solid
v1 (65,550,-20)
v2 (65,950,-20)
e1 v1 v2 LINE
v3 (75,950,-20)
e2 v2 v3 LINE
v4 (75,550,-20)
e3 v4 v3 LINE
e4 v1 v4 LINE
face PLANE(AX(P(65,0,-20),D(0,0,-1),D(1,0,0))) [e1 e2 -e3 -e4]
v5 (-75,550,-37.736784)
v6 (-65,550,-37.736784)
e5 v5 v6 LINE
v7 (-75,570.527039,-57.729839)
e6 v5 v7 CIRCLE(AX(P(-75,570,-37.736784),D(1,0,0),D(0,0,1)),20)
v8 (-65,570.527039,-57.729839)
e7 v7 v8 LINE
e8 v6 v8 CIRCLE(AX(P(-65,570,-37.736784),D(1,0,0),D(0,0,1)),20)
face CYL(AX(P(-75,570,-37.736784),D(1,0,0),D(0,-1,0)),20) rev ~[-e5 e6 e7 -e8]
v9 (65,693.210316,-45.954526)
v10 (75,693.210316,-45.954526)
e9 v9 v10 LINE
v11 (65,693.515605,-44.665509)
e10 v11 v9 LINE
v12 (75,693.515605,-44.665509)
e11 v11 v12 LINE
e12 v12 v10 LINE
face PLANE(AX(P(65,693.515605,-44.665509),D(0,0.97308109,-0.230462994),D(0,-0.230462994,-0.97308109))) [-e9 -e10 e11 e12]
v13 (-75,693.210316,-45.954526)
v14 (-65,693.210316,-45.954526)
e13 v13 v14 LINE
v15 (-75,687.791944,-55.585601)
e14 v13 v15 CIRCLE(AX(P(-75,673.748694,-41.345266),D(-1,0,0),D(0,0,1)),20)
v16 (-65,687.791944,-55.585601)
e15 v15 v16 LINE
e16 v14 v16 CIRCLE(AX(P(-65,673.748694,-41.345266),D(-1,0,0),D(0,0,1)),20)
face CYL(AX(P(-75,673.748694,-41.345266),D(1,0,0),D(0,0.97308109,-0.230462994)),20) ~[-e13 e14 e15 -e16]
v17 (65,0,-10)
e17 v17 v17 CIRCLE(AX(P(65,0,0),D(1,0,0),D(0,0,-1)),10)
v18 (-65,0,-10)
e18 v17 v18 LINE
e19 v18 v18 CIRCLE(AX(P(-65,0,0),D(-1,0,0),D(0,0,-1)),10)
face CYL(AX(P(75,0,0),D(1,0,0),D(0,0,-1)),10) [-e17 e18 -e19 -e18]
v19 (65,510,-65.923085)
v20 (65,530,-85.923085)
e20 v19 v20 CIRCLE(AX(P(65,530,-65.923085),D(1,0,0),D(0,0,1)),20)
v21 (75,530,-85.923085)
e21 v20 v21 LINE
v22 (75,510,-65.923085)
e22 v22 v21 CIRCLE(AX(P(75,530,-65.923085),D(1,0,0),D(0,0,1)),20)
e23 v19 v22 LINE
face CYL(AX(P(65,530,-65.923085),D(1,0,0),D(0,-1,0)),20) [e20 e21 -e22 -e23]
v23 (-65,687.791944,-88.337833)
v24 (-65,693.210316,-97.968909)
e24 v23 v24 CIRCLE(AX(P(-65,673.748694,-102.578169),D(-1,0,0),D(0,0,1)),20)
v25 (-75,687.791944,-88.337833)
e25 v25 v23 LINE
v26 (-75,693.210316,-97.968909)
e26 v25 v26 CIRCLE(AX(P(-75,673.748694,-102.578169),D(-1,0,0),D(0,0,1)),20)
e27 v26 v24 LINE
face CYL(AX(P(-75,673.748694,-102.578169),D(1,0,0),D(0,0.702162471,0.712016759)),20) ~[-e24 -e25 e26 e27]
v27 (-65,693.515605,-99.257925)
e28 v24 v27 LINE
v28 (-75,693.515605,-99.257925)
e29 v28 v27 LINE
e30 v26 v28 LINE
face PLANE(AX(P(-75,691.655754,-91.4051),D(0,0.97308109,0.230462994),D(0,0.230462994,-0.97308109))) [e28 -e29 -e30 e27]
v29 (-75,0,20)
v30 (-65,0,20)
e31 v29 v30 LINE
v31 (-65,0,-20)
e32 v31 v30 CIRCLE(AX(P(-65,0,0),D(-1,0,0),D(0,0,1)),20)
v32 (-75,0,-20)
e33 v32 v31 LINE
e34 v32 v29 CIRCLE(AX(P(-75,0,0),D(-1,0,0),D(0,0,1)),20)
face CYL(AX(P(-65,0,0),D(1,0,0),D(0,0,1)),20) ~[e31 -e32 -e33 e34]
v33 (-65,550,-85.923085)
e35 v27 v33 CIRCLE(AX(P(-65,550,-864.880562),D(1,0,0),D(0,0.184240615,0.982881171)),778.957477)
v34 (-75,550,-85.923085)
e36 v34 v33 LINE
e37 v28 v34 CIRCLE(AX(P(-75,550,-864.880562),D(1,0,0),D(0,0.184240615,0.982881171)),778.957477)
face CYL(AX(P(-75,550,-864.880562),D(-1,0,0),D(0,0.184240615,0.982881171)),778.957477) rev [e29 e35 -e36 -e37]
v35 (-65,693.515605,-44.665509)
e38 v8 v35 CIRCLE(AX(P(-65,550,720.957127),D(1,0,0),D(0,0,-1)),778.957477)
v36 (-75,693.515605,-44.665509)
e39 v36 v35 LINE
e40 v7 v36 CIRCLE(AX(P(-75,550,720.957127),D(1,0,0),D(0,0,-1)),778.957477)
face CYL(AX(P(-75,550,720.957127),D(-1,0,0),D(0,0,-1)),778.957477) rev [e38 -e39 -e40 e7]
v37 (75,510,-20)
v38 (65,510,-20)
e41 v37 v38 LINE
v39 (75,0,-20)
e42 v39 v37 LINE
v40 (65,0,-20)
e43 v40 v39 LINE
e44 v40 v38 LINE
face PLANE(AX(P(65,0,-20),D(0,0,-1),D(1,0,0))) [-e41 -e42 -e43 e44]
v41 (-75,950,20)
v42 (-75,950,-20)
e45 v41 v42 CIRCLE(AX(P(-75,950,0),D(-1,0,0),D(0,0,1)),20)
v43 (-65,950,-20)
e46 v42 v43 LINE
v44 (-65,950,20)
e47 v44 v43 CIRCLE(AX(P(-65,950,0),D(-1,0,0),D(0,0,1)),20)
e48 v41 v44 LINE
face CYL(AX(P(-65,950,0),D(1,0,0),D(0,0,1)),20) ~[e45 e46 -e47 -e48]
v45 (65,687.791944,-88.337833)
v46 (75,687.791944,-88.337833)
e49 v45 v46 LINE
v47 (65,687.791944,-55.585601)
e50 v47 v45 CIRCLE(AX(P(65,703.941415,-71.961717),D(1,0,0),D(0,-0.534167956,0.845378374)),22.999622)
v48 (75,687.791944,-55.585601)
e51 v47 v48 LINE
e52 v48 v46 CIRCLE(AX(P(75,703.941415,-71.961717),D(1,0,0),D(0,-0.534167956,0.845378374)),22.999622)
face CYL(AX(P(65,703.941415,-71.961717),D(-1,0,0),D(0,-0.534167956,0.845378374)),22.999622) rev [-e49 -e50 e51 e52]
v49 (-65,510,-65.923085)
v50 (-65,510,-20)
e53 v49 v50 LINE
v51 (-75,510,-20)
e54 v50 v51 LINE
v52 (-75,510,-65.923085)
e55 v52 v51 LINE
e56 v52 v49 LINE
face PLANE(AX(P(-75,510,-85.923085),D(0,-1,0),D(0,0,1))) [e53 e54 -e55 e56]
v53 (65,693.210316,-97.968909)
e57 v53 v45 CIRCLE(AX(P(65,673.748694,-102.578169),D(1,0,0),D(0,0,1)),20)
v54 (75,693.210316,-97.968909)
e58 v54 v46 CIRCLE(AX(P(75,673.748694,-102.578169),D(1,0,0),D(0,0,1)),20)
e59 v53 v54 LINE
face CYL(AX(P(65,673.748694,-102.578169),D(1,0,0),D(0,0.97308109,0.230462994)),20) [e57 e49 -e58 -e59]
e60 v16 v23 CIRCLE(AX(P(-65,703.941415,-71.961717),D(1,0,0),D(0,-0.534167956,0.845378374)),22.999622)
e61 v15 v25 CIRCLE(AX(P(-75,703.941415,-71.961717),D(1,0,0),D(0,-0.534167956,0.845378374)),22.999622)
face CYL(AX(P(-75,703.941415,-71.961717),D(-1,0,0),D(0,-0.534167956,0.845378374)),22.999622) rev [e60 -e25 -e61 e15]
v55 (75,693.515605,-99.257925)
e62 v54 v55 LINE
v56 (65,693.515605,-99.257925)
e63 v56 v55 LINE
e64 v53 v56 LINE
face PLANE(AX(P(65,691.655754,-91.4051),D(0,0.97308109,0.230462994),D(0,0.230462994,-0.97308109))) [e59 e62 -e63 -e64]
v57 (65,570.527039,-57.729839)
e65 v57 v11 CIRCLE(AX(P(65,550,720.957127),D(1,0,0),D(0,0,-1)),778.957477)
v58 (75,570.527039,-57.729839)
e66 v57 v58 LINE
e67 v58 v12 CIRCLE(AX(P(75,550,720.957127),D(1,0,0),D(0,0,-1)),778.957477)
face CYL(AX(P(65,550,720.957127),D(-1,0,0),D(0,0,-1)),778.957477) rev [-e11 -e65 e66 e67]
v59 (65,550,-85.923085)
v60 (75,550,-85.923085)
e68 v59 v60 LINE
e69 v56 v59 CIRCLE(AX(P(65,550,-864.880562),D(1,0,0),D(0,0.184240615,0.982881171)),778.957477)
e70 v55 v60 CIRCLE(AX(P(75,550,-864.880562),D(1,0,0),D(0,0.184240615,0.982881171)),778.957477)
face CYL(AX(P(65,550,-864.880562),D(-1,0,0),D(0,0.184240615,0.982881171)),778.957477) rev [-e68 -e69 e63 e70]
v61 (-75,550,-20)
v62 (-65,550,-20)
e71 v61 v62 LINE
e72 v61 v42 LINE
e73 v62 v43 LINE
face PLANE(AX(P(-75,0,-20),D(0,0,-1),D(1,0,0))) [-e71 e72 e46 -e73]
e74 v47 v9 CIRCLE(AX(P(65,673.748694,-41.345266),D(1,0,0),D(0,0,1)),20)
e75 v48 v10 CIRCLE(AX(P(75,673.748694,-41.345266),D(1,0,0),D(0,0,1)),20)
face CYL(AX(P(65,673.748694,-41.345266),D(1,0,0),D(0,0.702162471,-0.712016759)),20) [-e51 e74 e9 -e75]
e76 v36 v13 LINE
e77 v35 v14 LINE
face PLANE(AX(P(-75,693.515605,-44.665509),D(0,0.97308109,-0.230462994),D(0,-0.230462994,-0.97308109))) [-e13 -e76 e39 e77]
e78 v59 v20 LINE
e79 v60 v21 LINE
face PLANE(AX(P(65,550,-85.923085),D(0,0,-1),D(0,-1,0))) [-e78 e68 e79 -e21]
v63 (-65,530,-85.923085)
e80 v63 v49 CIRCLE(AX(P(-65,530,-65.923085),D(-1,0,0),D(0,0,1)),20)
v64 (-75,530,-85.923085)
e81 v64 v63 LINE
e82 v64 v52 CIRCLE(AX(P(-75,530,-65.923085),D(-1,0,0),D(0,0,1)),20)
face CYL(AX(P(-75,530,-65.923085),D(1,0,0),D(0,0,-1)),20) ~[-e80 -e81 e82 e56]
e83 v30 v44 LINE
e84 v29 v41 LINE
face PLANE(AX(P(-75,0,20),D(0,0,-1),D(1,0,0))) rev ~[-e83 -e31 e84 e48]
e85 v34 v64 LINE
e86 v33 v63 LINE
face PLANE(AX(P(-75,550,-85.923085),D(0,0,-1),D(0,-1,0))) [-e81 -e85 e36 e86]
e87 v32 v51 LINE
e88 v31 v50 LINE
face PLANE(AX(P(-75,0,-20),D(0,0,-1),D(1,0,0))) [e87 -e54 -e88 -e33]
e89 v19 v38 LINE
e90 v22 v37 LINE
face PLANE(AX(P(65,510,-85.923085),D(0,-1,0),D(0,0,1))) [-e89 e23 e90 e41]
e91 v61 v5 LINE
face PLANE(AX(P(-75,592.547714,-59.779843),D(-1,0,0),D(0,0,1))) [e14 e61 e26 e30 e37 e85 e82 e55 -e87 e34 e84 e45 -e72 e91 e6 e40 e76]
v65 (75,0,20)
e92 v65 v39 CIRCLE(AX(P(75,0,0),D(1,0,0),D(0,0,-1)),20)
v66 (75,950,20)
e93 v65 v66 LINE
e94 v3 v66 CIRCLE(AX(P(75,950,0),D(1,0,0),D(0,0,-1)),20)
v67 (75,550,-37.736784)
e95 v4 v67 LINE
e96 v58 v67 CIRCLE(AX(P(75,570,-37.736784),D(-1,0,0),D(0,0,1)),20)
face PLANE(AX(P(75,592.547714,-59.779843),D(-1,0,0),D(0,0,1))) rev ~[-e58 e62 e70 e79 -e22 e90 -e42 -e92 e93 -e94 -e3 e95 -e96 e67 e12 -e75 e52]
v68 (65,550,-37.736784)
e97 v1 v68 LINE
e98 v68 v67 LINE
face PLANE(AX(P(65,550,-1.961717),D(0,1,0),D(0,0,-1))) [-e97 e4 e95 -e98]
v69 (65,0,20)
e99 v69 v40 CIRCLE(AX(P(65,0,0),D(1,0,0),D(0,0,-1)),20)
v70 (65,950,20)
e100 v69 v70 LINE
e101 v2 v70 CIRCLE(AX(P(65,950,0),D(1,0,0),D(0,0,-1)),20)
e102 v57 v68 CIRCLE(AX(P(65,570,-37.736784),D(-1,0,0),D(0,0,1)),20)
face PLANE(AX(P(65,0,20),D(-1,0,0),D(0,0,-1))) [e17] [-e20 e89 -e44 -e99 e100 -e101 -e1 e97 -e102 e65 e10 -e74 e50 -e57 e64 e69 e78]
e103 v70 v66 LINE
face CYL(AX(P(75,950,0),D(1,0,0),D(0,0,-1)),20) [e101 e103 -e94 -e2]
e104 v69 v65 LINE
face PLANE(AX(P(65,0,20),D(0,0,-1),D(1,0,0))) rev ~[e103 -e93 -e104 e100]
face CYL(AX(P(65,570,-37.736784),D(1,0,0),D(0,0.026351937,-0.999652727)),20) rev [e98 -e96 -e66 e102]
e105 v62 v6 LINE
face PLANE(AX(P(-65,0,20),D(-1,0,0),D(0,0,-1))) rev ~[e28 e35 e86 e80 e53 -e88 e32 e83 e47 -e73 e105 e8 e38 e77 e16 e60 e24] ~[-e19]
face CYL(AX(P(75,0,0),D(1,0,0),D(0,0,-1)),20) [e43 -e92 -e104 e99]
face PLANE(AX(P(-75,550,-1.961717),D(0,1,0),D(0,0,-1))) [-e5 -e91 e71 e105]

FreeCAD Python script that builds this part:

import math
import FreeCAD as App
import Part
import Sketcher

V = App.Vector
Q = App.Units.Quantity


def edges_at(feature, points):
    """Names of the edges that pass closest to the given points."""
    edges = feature.Shape.Edges
    near = lambda p: min(range(len(edges)), key=lambda i: edges[i].distToShape(Part.Vertex(*p))[0])
    return sorted({f"Edge{near(p) + 1}" for p in points})

doc = App.newDocument("Part")
body = doc.addObject("PartDesign::Body", "Body")

# Sketch on XZ plane
sketch1 = body.newObject("Sketcher::SketchObject", "Sketch")
sketch1.AttachmentSupport = (doc.getObject("XZ_Plane"), [""])
sketch1.MapMode = "FlatFace"
sketch1.addGeometry([
    Part.LineSegment(V(-75, -20, 0), V(-75, 20, 0)),
    Part.LineSegment(V(-75, 20, 0), V(-65, 20, 0)),
    Part.LineSegment(V(-65, 20, 0), V(-65, -20, 0)),
    Part.LineSegment(V(-65, -20, 0), V(-75, -20, 0)),
], False)
sketch1.addConstraint([
    Sketcher.Constraint("Coincident", 0, 2, 1, 1),
    Sketcher.Constraint("Coincident", 1, 2, 2, 1),
    Sketcher.Constraint("Coincident", 2, 2, 3, 1),
    Sketcher.Constraint("Coincident", 3, 2, 0, 1),
    Sketcher.Constraint("Vertical", 0),
    Sketcher.Constraint("Horizontal", 1),
    Sketcher.Constraint("Vertical", 2),
    Sketcher.Constraint("Horizontal", 3),
    Sketcher.Constraint("DistanceX", 1, 1, 1, 2, Q("10 mm")),
    Sketcher.Constraint("DistanceY", 0, 1, 0, 2, Q("40 mm")),
    Sketcher.Constraint("DistanceX", 0, 2, -1, 1, Q("75 mm")),
    Sketcher.Constraint("DistanceY", -1, 1, 0, 2, Q("20 mm")),
])
pad1 = body.newObject("PartDesign::Pad", "Pad")
pad1.Profile = sketch1
pad1.Length = 950
pad1.Reversed = True
body2 = doc.addObject("PartDesign::Body", "Body001")

# Sketch on XZ plane
sketch2 = body2.newObject("Sketcher::SketchObject", "Sketch001")
sketch2.AttachmentSupport = (doc.getObject("XZ_Plane001"), [""])
sketch2.MapMode = "FlatFace"
sketch2.addGeometry([
    Part.LineSegment(V(65, -20, 0), V(65, 20, 0)),
    Part.LineSegment(V(65, 20, 0), V(75, 20, 0)),
    Part.LineSegment(V(75, 20, 0), V(75, -20, 0)),
    Part.LineSegment(V(75, -20, 0), V(65, -20, 0)),
], False)
sketch2.addConstraint([
    Sketcher.Constraint("Coincident", 0, 2, 1, 1),
    Sketcher.Constraint("Coincident", 1, 2, 2, 1),
    Sketcher.Constraint("Coincident", 2, 2, 3, 1),
    Sketcher.Constraint("Coincident", 3, 2, 0, 1),
    Sketcher.Constraint("Vertical", 0),
    Sketcher.Constraint("Horizontal", 1),
    Sketcher.Constraint("Vertical", 2),
    Sketcher.Constraint("Horizontal", 3),
    Sketcher.Constraint("DistanceX", 1, 1, 1, 2, Q("10 mm")),
    Sketcher.Constraint("DistanceY", 0, 1, 0, 2, Q("40 mm")),
    Sketcher.Constraint("DistanceX", -1, 1, 0, 2, Q("65 mm")),
    Sketcher.Constraint("DistanceY", -1, 1, 0, 2, Q("20 mm")),
])
pad2 = body2.newObject("PartDesign::Pad", "Pad001")
pad2.Profile = sketch2
pad2.Length = 950
pad2.Reversed = True
body.AllowCompound = True
doc.recompute()

boolean = body.newObject("PartDesign::Boolean", "Boolean")
boolean.Type = "Fuse"
boolean.addObjects([body2])

# Sketch on YZ plane
sketch3 = body.newObject("Sketcher::SketchObject", "Sketch002")
sketch3.AttachmentSupport = (doc.getObject("YZ_Plane"), [""])
sketch3.MapMode = "FlatFace"
sketch3.AttachmentOffset = App.Placement(V(0, 0, 75), App.Rotation())
sketch3.addGeometry(Part.Circle(V(0, 0, 0), V(0, 0, 1), 10), False)
sketch3.addConstraint([
    Sketcher.Constraint("Coincident", 0, 3, -1, 1),
    Sketcher.Constraint("Diameter", 0, Q("20 mm")),
])
pad3 = body.newObject("PartDesign::Pad", "Pad002")
pad3.Profile = sketch3
pad3.Length = 150
pad3.Reversed = True

# Sketch on YZ plane
sketch4 = body.newObject("Sketcher::SketchObject", "Sketch003")
sketch4.AttachmentSupport = (doc.getObject("YZ_Plane"), [""])
sketch4.MapMode = "FlatFace"
sketch4.AttachmentOffset = App.Placement(V(0, 0, 75), App.Rotation())
sketch4.addGeometry([
    Part.Circle(V(950, 0, 0), V(0, 0, 1), 20),
    Part.Circle(V(0, 0, 0), V(0, 0, 1), 20),
], False)
sketch4.addConstraint([
    Sketcher.Constraint("Coincident", 1, 3, -1, 1),
    Sketcher.Constraint("Equal", 0, 1),
    Sketcher.Constraint("PointOnObject", 0, 3, -1),
    Sketcher.Constraint("Diameter", 0, Q("40 mm")),
    Sketcher.Constraint("DistanceX", -1, 1, 0, 3, Q("950 mm")),
])
pad4 = body.newObject("PartDesign::Pad", "Pad003")
pad4.Profile = sketch4
pad4.Length = 10
pad4.Reversed = True

# Sketch on YZ plane
sketch5 = body.newObject("Sketcher::SketchObject", "Sketch004")
sketch5.AttachmentSupport = (doc.getObject("YZ_Plane"), [""])
sketch5.MapMode = "FlatFace"
sketch5.AttachmentOffset = App.Placement(V(0, 0, -65), App.Rotation())
sketch5.addGeometry([
    Part.Circle(V(950, 0, 0), V(0, 0, 1), 20),
    Part.Circle(V(0, 0, 0), V(0, 0, 1), 20),
], False)
sketch5.addConstraint([
    Sketcher.Constraint("Coincident", 1, 3, -1, 1),
    Sketcher.Constraint("Equal", 0, 1),
    Sketcher.Constraint("PointOnObject", 0, 3, -1),
    Sketcher.Constraint("Diameter", 0, Q("40 mm")),
    Sketcher.Constraint("DistanceX", -1, 1, 0, 3, Q("950 mm")),
])
pad5 = body.newObject("PartDesign::Pad", "Pad004")
pad5.Profile = sketch5
pad5.Length = 10
pad5.Reversed = True

# Sketch on YZ plane
sketch6 = body.newObject("Sketcher::SketchObject", "Sketch005")
sketch6.AttachmentSupport = (doc.getObject("YZ_Plane"), [""])
sketch6.MapMode = "FlatFace"
sketch6.AttachmentOffset = App.Placement(V(0, 0, -75), App.Rotation())
sketch6.addGeometry([
    Part.LineSegment(V(550, -2, 0), V(550, -58, 0)),  # 0
    Part.ArcOfCircle(Part.Circle(V(550, 721, 0), V(0, 0, 1), 779), math.radians(-90), math.radians(-79.38)),  # 1
    Part.LineSegment(V(694, -45, 0), V(692, -53, 0)),  # 2
    Part.ArcOfCircle(Part.Circle(V(704, -72, 0), V(0, 0, 1), 23), math.radians(122), math.radians(238)),  # 3
    Part.LineSegment(V(692, -91, 0), V(694, -99, 0)),  # 4
    Part.ArcOfCircle(Part.Circle(V(550, -865, 0), V(0, 0, 1), 779), math.radians(79.38), math.radians(90)),  # 5
    Part.LineSegment(V(550, -86, 0), V(510, -86, 0)),  # 6
    Part.LineSegment(V(510, -86, 0), V(510, -2, 0)),  # 7
    Part.LineSegment(V(510, -2, 0), V(550, -2, 0)),  # 8
], False)
sketch6.addConstraint([
    Sketcher.Constraint("Coincident", 0, 2, 1, 1),
    Sketcher.Constraint("Coincident", 1, 2, 2, 1),
    Sketcher.Constraint("Coincident", 2, 2, 3, 1),
    Sketcher.Constraint("Coincident", 3, 2, 4, 1),
    Sketcher.Constraint("Coincident", 4, 2, 5, 1),
    Sketcher.Constraint("Tangent", 5, 2, 6, 1),
    Sketcher.Constraint("Coincident", 6, 2, 7, 1),
    Sketcher.Constraint("Coincident", 7, 2, 8, 1),
    Sketcher.Constraint("Coincident", 8, 2, 0, 1),
    Sketcher.Constraint("Vertical", 0),
    Sketcher.Constraint("Horizontal", 6),
    Sketcher.Constraint("Vertical", 7),
    Sketcher.Constraint("Horizontal", 8),
    Sketcher.Constraint("Equal", 1, 5),
    Sketcher.Constraint("Vertical", 1, 3, 5, 3),
    Sketcher.Constraint("Vertical", 5, 3, 0, 2),
    Sketcher.Constraint("Vertical", 2, 2, 3, 2),
    Sketcher.Constraint("Equal", 2, 4),
    Sketcher.Constraint("DistanceX", 6, 2, 6, 1, Q("40 mm")),
    Sketcher.Constraint("DistanceX", -1, 1, 1, 3, Q("550 mm")),
    Sketcher.Constraint("Radius", 3, Q("22.999622 mm")),
    Sketcher.Constraint("Radius", 1, Q("778.957477 mm")),
    Sketcher.Constraint("DistanceY", 3, 2, -1, 1, Q("91.4051 mm")),
    Sketcher.Constraint("DistanceY", 0, 2, 0, 1, Q("56.038632 mm")),
    Sketcher.Constraint("DistanceY", 7, 1, 7, 2, Q("83.961368 mm")),
    Sketcher.Constraint("DistanceY", 0, 2, -1, 1, Q("58.00035 mm")),
    Sketcher.Constraint("DistanceX", 2, 2, 3, 3, Q("12.285661 mm")),
    Sketcher.Constraint("DistanceX", 3, 2, 4, 2, Q("1.859851 mm")),
    Sketcher.Constraint("DistanceY", 4, 2, 2, 2, Q("46.739591 mm")),
])
pad6 = body.newObject("PartDesign::Pad", "Pad005")
pad6.Profile = sketch6
pad6.Length = 10

# Sketch on YZ plane
sketch7 = body.newObject("Sketcher::SketchObject", "Sketch006")
sketch7.AttachmentSupport = (doc.getObject("YZ_Plane"), [""])
sketch7.MapMode = "FlatFace"
sketch7.AttachmentOffset = App.Placement(V(0, 0, 65), App.Rotation())
sketch7.addGeometry([
    Part.LineSegment(V(550, -2, 0), V(550, -58, 0)),  # 0
    Part.ArcOfCircle(Part.Circle(V(550, 721, 0), V(0, 0, 1), 779), math.radians(-90), math.radians(-79.38)),  # 1
    Part.LineSegment(V(694, -45, 0), V(692, -53, 0)),  # 2
    Part.ArcOfCircle(Part.Circle(V(704, -72, 0), V(0, 0, 1), 23), math.radians(122), math.radians(238)),  # 3
    Part.LineSegment(V(692, -91, 0), V(694, -99, 0)),  # 4
    Part.ArcOfCircle(Part.Circle(V(550, -865, 0), V(0, 0, 1), 779), math.radians(79.38), math.radians(90)),  # 5
    Part.LineSegment(V(550, -86, 0), V(510, -86, 0)),  # 6
    Part.LineSegment(V(510, -86, 0), V(510, -2, 0)),  # 7
    Part.LineSegment(V(510, -2, 0), V(550, -2, 0)),  # 8
], False)
sketch7.addConstraint([
    Sketcher.Constraint("Coincident", 0, 2, 1, 1),
    Sketcher.Constraint("Coincident", 1, 2, 2, 1),
    Sketcher.Constraint("Coincident", 2, 2, 3, 1),
    Sketcher.Constraint("Coincident", 3, 2, 4, 1),
    Sketcher.Constraint("Coincident", 4, 2, 5, 1),
    Sketcher.Constraint("Tangent", 5, 2, 6, 1),
    Sketcher.Constraint("Coincident", 6, 2, 7, 1),
    Sketcher.Constraint("Coincident", 7, 2, 8, 1),
    Sketcher.Constraint("Coincident", 8, 2, 0, 1),
    Sketcher.Constraint("Vertical", 0),
    Sketcher.Constraint("Horizontal", 6),
    Sketcher.Constraint("Vertical", 7),
    Sketcher.Constraint("Horizontal", 8),
    Sketcher.Constraint("Equal", 1, 5),
    Sketcher.Constraint("Vertical", 1, 3, 5, 3),
    Sketcher.Constraint("Vertical", 5, 3, 0, 2),
    Sketcher.Constraint("Vertical", 2, 2, 3, 2),
    Sketcher.Constraint("Equal", 2, 4),
    Sketcher.Constraint("DistanceX", 6, 2, 6, 1, Q("40 mm")),
    Sketcher.Constraint("DistanceX", -1, 1, 1, 3, Q("550 mm")),
    Sketcher.Constraint("Radius", 3, Q("22.999622 mm")),
    Sketcher.Constraint("Radius", 1, Q("778.957477 mm")),
    Sketcher.Constraint("DistanceY", 3, 2, -1, 1, Q("91.4051 mm")),
    Sketcher.Constraint("DistanceY", 0, 2, 0, 1, Q("56.038632 mm")),
    Sketcher.Constraint("DistanceY", 7, 1, 7, 2, Q("83.961368 mm")),
    Sketcher.Constraint("DistanceY", 0, 2, -1, 1, Q("58.00035 mm")),
    Sketcher.Constraint("DistanceX", 2, 2, 3, 3, Q("12.285661 mm")),
    Sketcher.Constraint("DistanceX", 3, 2, 4, 2, Q("1.859851 mm")),
    Sketcher.Constraint("DistanceY", 4, 2, 2, 2, Q("46.739591 mm")),
])
pad7 = body.newObject("PartDesign::Pad", "Pad006")
pad7.Profile = sketch7
pad7.Length = 10
doc.recompute()

fillet = body.newObject("PartDesign::Fillet", "Fillet")
fillet.Base = (pad7, edges_at(pad7, [
    (70, 550, -58),
    (70, 510, -85.923),
    (70, 691.656, -91.405),
    (70, 691.656, -52.518),
    (-70, 550, -58),
    (-70, 510, -85.923),
    (-70, 691.656, -91.405),
    (-70, 691.656, -52.518),
]))
fillet.Radius = 20

doc.recompute()
